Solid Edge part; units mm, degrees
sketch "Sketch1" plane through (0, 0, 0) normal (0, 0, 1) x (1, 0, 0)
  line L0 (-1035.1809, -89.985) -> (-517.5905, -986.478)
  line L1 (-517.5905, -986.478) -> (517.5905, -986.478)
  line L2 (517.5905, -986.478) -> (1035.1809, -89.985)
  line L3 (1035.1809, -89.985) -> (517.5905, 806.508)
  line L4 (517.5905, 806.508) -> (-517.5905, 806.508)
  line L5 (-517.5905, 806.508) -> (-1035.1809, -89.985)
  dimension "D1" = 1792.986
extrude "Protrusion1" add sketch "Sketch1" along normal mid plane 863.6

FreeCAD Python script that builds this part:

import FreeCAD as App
import Part
import Sketcher
from FreeCAD import Vector
Q = App.Units.Quantity


def add_polygon(sketch, points):
    """Adds a closed chain of lines whose ends are joined by coincident constraints."""
    first, n = sketch.GeometryCount, len(points)
    for a, b in zip(points, points[1:] + points[:1]):
        sketch.addGeometry(Part.LineSegment(App.Vector(*a, 0), App.Vector(*b, 0)), False)
    for i in range(n):
        sketch.addConstraint(Sketcher.Constraint("Coincident", first + i, 2, first + (i + 1) % n, 1))

doc = App.newDocument("Part")
body = doc.addObject("PartDesign::Body", "Body")

sketch1 = body.newObject("Sketcher::SketchObject", "Sketch")
sketch1.AttachmentSupport = (doc.getObject("XY_Plane"), [""])
sketch1.MapMode = "FlatFace"
add_polygon(sketch1, [(-518, 807), (-1035, -90), (-518, -986), (518, -986), (1035, -90), (518, 807)])
sketch1.addConstraint(Sketcher.Constraint("Horizontal", 2))
sketch1.addConstraint(Sketcher.Constraint("Horizontal", 5))
sketch1.addConstraint(Sketcher.Constraint("Symmetric", 0, 2, 3, 2, -2))
sketch1.addConstraint(Sketcher.Constraint("Parallel", 0, 3))
sketch1.addConstraint(Sketcher.Constraint("Parallel", 1, 4))
sketch1.addConstraint(Sketcher.Constraint("Vertical", 2, 2, 4, 2))
sketch1.addConstraint(Sketcher.Constraint("Vertical", 1, 2, 5, 2))
sketch1.addConstraint(Sketcher.Constraint("Angle", 0, Q("-120 deg")))
sketch1.addConstraint(Sketcher.Constraint("DistanceY", 2, 2, 4, 2, Q("70.59 in")))
sketch1.addConstraint(Sketcher.Constraint("DistanceX", 2, 1, 2, 2, Q("1035.181 mm")))
sketch1.addConstraint(Sketcher.Constraint("DistanceY", 0, 2, -1, 1, Q("89.985 mm")))
pad1 = body.newObject("PartDesign::Pad", "Pad")
pad1.Profile = sketch1
pad1.Length = Q("34 in")
pad1.Midplane = True

doc.recompute()
